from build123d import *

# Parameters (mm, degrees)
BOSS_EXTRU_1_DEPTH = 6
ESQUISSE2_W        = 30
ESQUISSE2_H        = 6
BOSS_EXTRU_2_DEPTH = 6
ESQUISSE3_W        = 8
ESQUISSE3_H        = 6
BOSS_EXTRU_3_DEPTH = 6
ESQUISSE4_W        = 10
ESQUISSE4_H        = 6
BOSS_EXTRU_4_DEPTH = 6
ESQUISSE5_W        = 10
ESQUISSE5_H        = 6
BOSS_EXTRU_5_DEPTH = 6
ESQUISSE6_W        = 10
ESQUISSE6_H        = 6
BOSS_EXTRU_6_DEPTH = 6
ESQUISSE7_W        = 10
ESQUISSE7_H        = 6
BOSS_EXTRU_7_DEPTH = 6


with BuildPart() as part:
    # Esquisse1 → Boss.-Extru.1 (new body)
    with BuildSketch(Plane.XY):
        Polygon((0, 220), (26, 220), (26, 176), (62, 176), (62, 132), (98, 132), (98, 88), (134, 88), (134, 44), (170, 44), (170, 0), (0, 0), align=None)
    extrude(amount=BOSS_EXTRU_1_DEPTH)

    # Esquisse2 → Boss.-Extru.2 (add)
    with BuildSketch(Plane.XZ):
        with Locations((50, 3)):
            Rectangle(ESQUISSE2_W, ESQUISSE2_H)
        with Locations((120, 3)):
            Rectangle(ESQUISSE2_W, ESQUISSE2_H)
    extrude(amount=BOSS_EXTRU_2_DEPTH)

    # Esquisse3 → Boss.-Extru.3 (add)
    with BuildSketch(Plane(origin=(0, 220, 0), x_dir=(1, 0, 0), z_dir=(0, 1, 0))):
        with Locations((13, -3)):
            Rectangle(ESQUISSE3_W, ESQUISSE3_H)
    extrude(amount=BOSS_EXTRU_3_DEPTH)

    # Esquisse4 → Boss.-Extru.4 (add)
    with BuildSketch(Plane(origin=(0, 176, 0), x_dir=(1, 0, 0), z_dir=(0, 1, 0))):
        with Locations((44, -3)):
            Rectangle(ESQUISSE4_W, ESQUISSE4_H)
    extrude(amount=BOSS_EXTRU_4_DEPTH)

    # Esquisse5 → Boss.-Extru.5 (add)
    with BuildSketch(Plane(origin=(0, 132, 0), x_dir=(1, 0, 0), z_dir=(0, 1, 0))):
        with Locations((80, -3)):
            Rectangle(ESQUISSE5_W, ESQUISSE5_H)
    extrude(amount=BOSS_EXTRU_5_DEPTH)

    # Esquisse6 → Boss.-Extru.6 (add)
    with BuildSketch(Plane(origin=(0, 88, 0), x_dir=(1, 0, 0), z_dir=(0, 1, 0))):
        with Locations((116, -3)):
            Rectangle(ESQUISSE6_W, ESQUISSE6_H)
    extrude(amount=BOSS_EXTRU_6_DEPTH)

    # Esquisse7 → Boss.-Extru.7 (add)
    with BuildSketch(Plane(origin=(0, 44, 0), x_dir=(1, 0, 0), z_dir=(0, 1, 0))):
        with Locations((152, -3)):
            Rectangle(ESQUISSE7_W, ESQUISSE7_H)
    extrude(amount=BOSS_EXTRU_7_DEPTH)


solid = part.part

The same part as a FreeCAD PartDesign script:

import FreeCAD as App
import Part
import Sketcher
from FreeCAD import Vector


def add_polygon(sketch, points):
    """Adds a closed chain of lines whose ends are joined by coincident constraints."""
    first, n = sketch.GeometryCount, len(points)
    for a, b in zip(points, points[1:] + points[:1]):
        sketch.addGeometry(Part.LineSegment(App.Vector(*a, 0), App.Vector(*b, 0)), False)
    for i in range(n):
        sketch.addConstraint(Sketcher.Constraint("Coincident", first + i, 2, first + (i + 1) % n, 1))

doc = App.newDocument("Part")
body = doc.addObject("PartDesign::Body", "Body")

# Sketch on XY plane
sketch1 = body.newObject("Sketcher::SketchObject", "Sketch")
sketch1.AttachmentSupport = (doc.getObject("XY_Plane"), [""])
sketch1.MapMode = "FlatFace"
add_polygon(sketch1, [(26, 220), (0, 220), (0, 0), (170, 0), (170, 44), (134, 44), (134, 88), (98, 88), (98, 132), (62, 132), (62, 176), (26, 176)])  # lines 0-11
sketch1.addConstraint([
    Sketcher.Constraint("Horizontal", 0),
    Sketcher.Constraint("Vertical", 1),
    Sketcher.Constraint("Horizontal", 2),
    Sketcher.Constraint("Vertical", 3),
    Sketcher.Constraint("Horizontal", 4),
    Sketcher.Constraint("Vertical", 5),
    Sketcher.Constraint("Horizontal", 6),
    Sketcher.Constraint("Vertical", 7),
    Sketcher.Constraint("Horizontal", 8),
    Sketcher.Constraint("Vertical", 9),
    Sketcher.Constraint("Horizontal", 10),
    Sketcher.Constraint("Vertical", 11),
    Sketcher.Constraint("Coincident", 1, 2, -1, 1),
    Sketcher.Constraint("Equal", 4, 6),
    Sketcher.Constraint("Equal", 6, 8),
    Sketcher.Constraint("Equal", 8, 10),
    Sketcher.Constraint("Equal", 3, 5),
    Sketcher.Constraint("Equal", 5, 7),
    Sketcher.Constraint("Equal", 7, 9),
    Sketcher.Constraint("Equal", 9, 11),
    Sketcher.Constraint("DistanceX", 0, 2, 0, 1, 26.0),
    Sketcher.Constraint("DistanceX", 2, 1, 2, 2, 170.0),
    Sketcher.Constraint("DistanceY", 1, 2, 1, 1, 220.0),
])
pad1 = body.newObject("PartDesign::Pad", "Pad")
pad1.Profile = sketch1
pad1.Length = 6

# Sketch on XZ plane
sketch2 = body.newObject("Sketcher::SketchObject", "Sketch001")
sketch2.AttachmentSupport = (doc.getObject("XZ_Plane"), [""])
sketch2.MapMode = "FlatFace"
add_polygon(sketch2, [(35, 6), (35, 0), (65, 0), (65, 6)])  # lines 0-3
add_polygon(sketch2, [(105, 6), (105, 0), (135, 0), (135, 6)])  # lines 4-7
sketch2.addConstraint([
    Sketcher.Constraint("Vertical", 0),
    Sketcher.Constraint("Horizontal", 1),
    Sketcher.Constraint("Vertical", 2),
    Sketcher.Constraint("Horizontal", 3),
    Sketcher.Constraint("Vertical", 4),
    Sketcher.Constraint("Horizontal", 5),
    Sketcher.Constraint("Vertical", 6),
    Sketcher.Constraint("Horizontal", 7),
    Sketcher.Constraint("PointOnObject", 0, 2, -1),
    Sketcher.Constraint("PointOnObject", 4, 2, -1),
    Sketcher.Constraint("Horizontal", 3, 2, 6, 2),
    Sketcher.Constraint("Equal", 3, 5),
    Sketcher.Constraint("DistanceX", 1, 1, 1, 2, 30.0),
    Sketcher.Constraint("DistanceY", 0, 2, 0, 1, 6.0),
    Sketcher.Constraint("DistanceX", -1, 1, 0, 2, 35.0),
    Sketcher.Constraint("DistanceX", -1, 1, 4, 2, 105.0),
])
pad2 = body.newObject("PartDesign::Pad", "Pad001")
pad2.Profile = sketch2
pad2.Length = 6

# Sketch on XZ plane
sketch3 = body.newObject("Sketcher::SketchObject", "Sketch002")
sketch3.AttachmentSupport = (doc.getObject("XZ_Plane"), [""])
sketch3.MapMode = "FlatFace"
sketch3.AttachmentOffset = App.Placement(Vector(0, 0, -220), App.Rotation())
add_polygon(sketch3, [(9, 0), (9, 6), (17, 6), (17, 0)])  # lines 0-3
sketch3.addConstraint([
    Sketcher.Constraint("Vertical", 0),
    Sketcher.Constraint("Horizontal", 1),
    Sketcher.Constraint("Vertical", 2),
    Sketcher.Constraint("Horizontal", 3),
    Sketcher.Constraint("PointOnObject", 2, 2, -1),
    Sketcher.Constraint("DistanceX", 1, 1, 1, 2, 8.0),
    Sketcher.Constraint("DistanceY", 0, 1, 0, 2, 6.0),
    Sketcher.Constraint("DistanceX", -1, 1, 0, 2, 9.0),
])
pad3 = body.newObject("PartDesign::Pad", "Pad002")
pad3.Profile = sketch3
pad3.Length = 6
pad3.Reversed = True

# Sketch on XZ plane
sketch4 = body.newObject("Sketcher::SketchObject", "Sketch003")
sketch4.AttachmentSupport = (doc.getObject("XZ_Plane"), [""])
sketch4.MapMode = "FlatFace"
sketch4.AttachmentOffset = App.Placement(Vector(0, 0, -176), App.Rotation())
add_polygon(sketch4, [(39, 0), (39, 6), (49, 6), (49, 0)])  # lines 0-3
sketch4.addConstraint([
    Sketcher.Constraint("Vertical", 0),
    Sketcher.Constraint("Horizontal", 1),
    Sketcher.Constraint("Vertical", 2),
    Sketcher.Constraint("Horizontal", 3),
    Sketcher.Constraint("PointOnObject", 2, 2, -1),
    Sketcher.Constraint("DistanceX", 1, 1, 1, 2, 10.0),
    Sketcher.Constraint("DistanceY", 0, 1, 0, 2, 6.0),
    Sketcher.Constraint("DistanceX", -1, 1, 0, 2, 39.0),
])
pad4 = body.newObject("PartDesign::Pad", "Pad003")
pad4.Profile = sketch4
pad4.Length = 6
pad4.Reversed = True

# Sketch on XZ plane
sketch5 = body.newObject("Sketcher::SketchObject", "Sketch004")
sketch5.AttachmentSupport = (doc.getObject("XZ_Plane"), [""])
sketch5.MapMode = "FlatFace"
sketch5.AttachmentOffset = App.Placement(Vector(0, 0, -132), App.Rotation())
add_polygon(sketch5, [(75, 0), (75, 6), (85, 6), (85, 0)])  # lines 0-3
sketch5.addConstraint([
    Sketcher.Constraint("Vertical", 0),
    Sketcher.Constraint("Horizontal", 1),
    Sketcher.Constraint("Vertical", 2),
    Sketcher.Constraint("Horizontal", 3),
    Sketcher.Constraint("PointOnObject", 2, 2, -1),
    Sketcher.Constraint("DistanceX", 1, 1, 1, 2, 10.0),
    Sketcher.Constraint("DistanceY", 0, 1, 0, 2, 6.0),
    Sketcher.Constraint("DistanceX", -1, 1, 0, 2, 75.0),
])
pad5 = body.newObject("PartDesign::Pad", "Pad004")
pad5.Profile = sketch5
pad5.Length = 6
pad5.Reversed = True

# Sketch on XZ plane
sketch6 = body.newObject("Sketcher::SketchObject", "Sketch005")
sketch6.AttachmentSupport = (doc.getObject("XZ_Plane"), [""])
sketch6.MapMode = "FlatFace"
sketch6.AttachmentOffset = App.Placement(Vector(0, 0, -88), App.Rotation())
add_polygon(sketch6, [(111, 0), (111, 6), (121, 6), (121, 0)])  # lines 0-3
sketch6.addConstraint([
    Sketcher.Constraint("Vertical", 0),
    Sketcher.Constraint("Horizontal", 1),
    Sketcher.Constraint("Vertical", 2),
    Sketcher.Constraint("Horizontal", 3),
    Sketcher.Constraint("PointOnObject", 2, 2, -1),
    Sketcher.Constraint("DistanceX", 1, 1, 1, 2, 10.0),
    Sketcher.Constraint("DistanceY", 0, 1, 0, 2, 6.0),
    Sketcher.Constraint("DistanceX", -1, 1, 0, 2, 111.0),
])
pad6 = body.newObject("PartDesign::Pad", "Pad005")
pad6.Profile = sketch6
pad6.Length = 6
pad6.Reversed = True

# Sketch on XZ plane
sketch7 = body.newObject("Sketcher::SketchObject", "Sketch006")
sketch7.AttachmentSupport = (doc.getObject("XZ_Plane"), [""])
sketch7.MapMode = "FlatFace"
sketch7.AttachmentOffset = App.Placement(Vector(0, 0, -44), App.Rotation())
add_polygon(sketch7, [(147, 0), (147, 6), (157, 6), (157, 0)])  # lines 0-3
sketch7.addConstraint([
    Sketcher.Constraint("Vertical", 0),
    Sketcher.Constraint("Horizontal", 1),
    Sketcher.Constraint("Vertical", 2),
    Sketcher.Constraint("Horizontal", 3),
    Sketcher.Constraint("PointOnObject", 2, 2, -1),
    Sketcher.Constraint("DistanceX", 1, 1, 1, 2, 10.0),
    Sketcher.Constraint("DistanceY", 0, 1, 0, 2, 6.0),
    Sketcher.Constraint("DistanceX", -1, 1, 0, 2, 147.0),
])
pad7 = body.newObject("PartDesign::Pad", "Pad006")
pad7.Profile = sketch7
pad7.Length = 6
pad7.Reversed = True

doc.recompute()
